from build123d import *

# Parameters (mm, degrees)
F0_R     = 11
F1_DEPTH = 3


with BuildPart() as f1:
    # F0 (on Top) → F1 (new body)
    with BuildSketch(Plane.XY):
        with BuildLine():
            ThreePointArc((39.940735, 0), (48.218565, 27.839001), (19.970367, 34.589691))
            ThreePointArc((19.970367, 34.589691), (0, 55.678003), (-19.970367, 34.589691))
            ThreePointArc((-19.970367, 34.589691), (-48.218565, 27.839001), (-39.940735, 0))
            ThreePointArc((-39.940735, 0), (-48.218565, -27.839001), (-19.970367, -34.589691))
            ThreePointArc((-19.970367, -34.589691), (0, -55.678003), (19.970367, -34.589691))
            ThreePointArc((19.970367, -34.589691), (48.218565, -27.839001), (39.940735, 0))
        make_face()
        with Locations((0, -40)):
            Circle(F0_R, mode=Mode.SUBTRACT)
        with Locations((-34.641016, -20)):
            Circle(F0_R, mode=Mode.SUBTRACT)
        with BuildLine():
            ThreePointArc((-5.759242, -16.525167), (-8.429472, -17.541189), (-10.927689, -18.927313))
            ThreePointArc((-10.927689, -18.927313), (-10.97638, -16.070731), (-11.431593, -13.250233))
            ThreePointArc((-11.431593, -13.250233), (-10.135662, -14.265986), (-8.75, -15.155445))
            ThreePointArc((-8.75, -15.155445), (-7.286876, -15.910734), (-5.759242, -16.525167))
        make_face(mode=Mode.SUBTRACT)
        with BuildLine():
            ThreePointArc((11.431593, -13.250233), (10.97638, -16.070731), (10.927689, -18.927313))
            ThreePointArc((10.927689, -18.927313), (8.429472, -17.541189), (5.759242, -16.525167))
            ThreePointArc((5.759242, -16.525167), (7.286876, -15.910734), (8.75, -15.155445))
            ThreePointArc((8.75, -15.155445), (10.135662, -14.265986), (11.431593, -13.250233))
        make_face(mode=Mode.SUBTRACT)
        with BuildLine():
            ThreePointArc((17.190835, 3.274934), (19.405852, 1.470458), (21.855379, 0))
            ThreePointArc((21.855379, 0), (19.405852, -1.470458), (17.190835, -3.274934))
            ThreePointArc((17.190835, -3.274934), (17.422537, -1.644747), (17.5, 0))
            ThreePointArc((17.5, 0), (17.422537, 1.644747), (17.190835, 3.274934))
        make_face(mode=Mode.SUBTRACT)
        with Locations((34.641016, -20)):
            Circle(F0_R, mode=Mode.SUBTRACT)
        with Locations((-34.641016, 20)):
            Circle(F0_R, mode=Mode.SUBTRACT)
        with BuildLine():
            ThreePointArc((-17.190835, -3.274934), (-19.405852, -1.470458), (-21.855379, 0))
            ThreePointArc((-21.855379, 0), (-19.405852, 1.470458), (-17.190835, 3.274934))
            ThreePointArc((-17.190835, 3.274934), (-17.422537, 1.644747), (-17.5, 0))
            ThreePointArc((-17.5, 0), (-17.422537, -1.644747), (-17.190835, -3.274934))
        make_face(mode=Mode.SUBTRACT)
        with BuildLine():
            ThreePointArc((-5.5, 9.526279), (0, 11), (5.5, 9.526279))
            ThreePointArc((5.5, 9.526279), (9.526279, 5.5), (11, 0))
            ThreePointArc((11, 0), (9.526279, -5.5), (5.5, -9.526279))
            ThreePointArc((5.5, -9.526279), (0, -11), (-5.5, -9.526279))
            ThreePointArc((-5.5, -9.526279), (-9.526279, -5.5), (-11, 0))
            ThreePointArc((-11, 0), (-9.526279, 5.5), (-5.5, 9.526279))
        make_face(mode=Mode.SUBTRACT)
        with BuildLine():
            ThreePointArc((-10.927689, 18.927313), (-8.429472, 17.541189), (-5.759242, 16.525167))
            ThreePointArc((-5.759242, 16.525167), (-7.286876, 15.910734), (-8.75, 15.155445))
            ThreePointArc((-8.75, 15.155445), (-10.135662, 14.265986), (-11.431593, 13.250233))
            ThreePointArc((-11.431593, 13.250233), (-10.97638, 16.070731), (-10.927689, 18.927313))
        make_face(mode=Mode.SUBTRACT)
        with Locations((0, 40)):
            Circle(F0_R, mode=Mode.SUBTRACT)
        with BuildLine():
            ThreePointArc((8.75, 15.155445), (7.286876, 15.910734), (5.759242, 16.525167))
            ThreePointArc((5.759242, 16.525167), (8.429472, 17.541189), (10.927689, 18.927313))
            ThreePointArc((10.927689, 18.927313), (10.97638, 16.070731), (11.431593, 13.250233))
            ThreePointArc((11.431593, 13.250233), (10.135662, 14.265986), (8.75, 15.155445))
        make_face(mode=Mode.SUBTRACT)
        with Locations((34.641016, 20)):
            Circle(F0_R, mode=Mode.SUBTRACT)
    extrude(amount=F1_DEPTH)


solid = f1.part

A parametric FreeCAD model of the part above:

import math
import FreeCAD as App
import Part
import Sketcher
from FreeCAD import Vector

doc = App.newDocument("Part")
body = doc.addObject("PartDesign::Body", "Body")

# Sketch on XY plane
sketch1 = body.newObject("Sketcher::SketchObject", "Sketch")
sketch1.AttachmentSupport = (doc.getObject("XY_Plane"), [""])
sketch1.MapMode = "FlatFace"
sketch1.addGeometry(Part.ArcOfCircle(Part.Circle(Vector(30.898057, 17.839001, 0), Vector(0, 0, 1), 20), math.radians(-63.119323), math.radians(123.119325)), False)
sketch1.addGeometry(Part.ArcOfCircle(Part.Circle(Vector(0, 35.678003, 0), Vector(0, 0, 1), 20), math.radians(-3.119326), math.radians(183.119326)), False)
sketch1.addGeometry(Part.ArcOfCircle(Part.Circle(Vector(-30.898057, 17.839001, 0), Vector(0, 0, 1), 20), math.radians(56.880675), math.radians(243.119323)), False)
sketch1.addGeometry(Part.ArcOfCircle(Part.Circle(Vector(-30.898057, -17.839001, 0), Vector(0, 0, 1), 20), math.radians(116.880677), math.radians(303.119325)), False)
sketch1.addGeometry(Part.ArcOfCircle(Part.Circle(Vector(0, -35.678003, 0), Vector(0, 0, 1), 20), math.radians(176.880674), math.radians(363.119326)), False)
sketch1.addGeometry(Part.ArcOfCircle(Part.Circle(Vector(30.898057, -17.839001, 0), Vector(0, 0, 1), 20), math.radians(-123.119325), math.radians(63.119323)), False)
sketch1.addGeometry(Part.Circle(Vector(-34.641016, -20, 0), Vector(0, 0, 1), 11), False)
sketch1.addGeometry(Part.ArcOfCircle(Part.Circle(Vector(-0.000014, -0.000031, 0), Vector(0, 0, 1), 17.499966), math.radians(-120.00001), math.radians(-109.214119)), False)
sketch1.addGeometry(Part.ArcOfCircle(Part.Circle(Vector(-0.000023, -35.677956, 0), Vector(0, 0, 1), 19.999948), math.radians(106.735966), math.radians(123.119343)), False)
sketch1.addGeometry(Part.ArcOfCircle(Part.Circle(Vector(-30.898114, -17.839007, 0), Vector(0, 0, 1), 20.000057), math.radians(-3.119299), math.radians(13.263989)), False)
sketch1.addGeometry(Part.ArcOfCircle(Part.Circle(Vector(0.000011, 0.000011, 0), Vector(0, 0, 1), 17.500015), math.radians(-130.785875), math.radians(-120.000014)), False)
sketch1.addGeometry(Part.Circle(Vector(0, -40, 0), Vector(0, 0, 1), 11), False)
sketch1.addGeometry(Part.ArcOfCircle(Part.Circle(Vector(-0.000011, 0.000011, 0), Vector(0, 0, 1), 17.500015), math.radians(-59.999986), math.radians(-49.214125)), False)
sketch1.addGeometry(Part.ArcOfCircle(Part.Circle(Vector(30.898114, -17.839007, 0), Vector(0, 0, 1), 20.000057), math.radians(166.736011), math.radians(183.119299)), False)
sketch1.addGeometry(Part.ArcOfCircle(Part.Circle(Vector(0.000023, -35.677956, 0), Vector(0, 0, 1), 19.999948), math.radians(56.880657), math.radians(73.264034)), False)
sketch1.addGeometry(Part.ArcOfCircle(Part.Circle(Vector(0.000014, -0.000031, 0), Vector(0, 0, 1), 17.499966), math.radians(-70.785881), math.radians(-59.99999)), False)
sketch1.addGeometry(Part.Circle(Vector(34.641016, -20, 0), Vector(0, 0, 1), 11), False)
sketch1.addGeometry(Part.Circle(Vector(-34.641016, 20, 0), Vector(0, 0, 1), 11), False)
sketch1.addGeometry(Part.ArcOfCircle(Part.Circle(Vector(0.000078, 0.000007, 0), Vector(0, 0, 1), 17.500078), math.radians(-179.999976), math.radians(-169.214153)), False)
sketch1.addGeometry(Part.ArcOfCircle(Part.Circle(Vector(-30.898066, -17.839014, 0), Vector(0, 0, 1), 20.000016), math.radians(46.735993), math.radians(63.119317)), False)
sketch1.addGeometry(Part.ArcOfCircle(Part.Circle(Vector(-30.898066, 17.839014, 0), Vector(0, 0, 1), 20.000016), math.radians(-63.119317), math.radians(-46.735993)), False)
sketch1.addGeometry(Part.ArcOfCircle(Part.Circle(Vector(0.000078, -0.000007, 0), Vector(0, 0, 1), 17.500078), math.radians(169.214153), math.radians(179.999976)), False)
sketch1.addGeometry(Part.ArcOfCircle(Part.Circle(Vector(-30.898114, 17.839007, 0), Vector(0, 0, 1), 20.000057), math.radians(-13.263989), math.radians(3.119299)), False)
sketch1.addGeometry(Part.ArcOfCircle(Part.Circle(Vector(-0.000023, 35.677956, 0), Vector(0, 0, 1), 19.999948), math.radians(-123.119343), math.radians(-106.735966)), False)
sketch1.addGeometry(Part.ArcOfCircle(Part.Circle(Vector(-0.000014, 0.000031, 0), Vector(0, 0, 1), 17.499966), math.radians(109.214119), math.radians(120.00001)), False)
sketch1.addGeometry(Part.ArcOfCircle(Part.Circle(Vector(0.000011, -0.000011, 0), Vector(0, 0, 1), 17.500015), math.radians(120.000014), math.radians(130.785875)), False)
sketch1.addGeometry(Part.ArcOfCircle(Part.Circle(Vector(0.000001, -0.000001, 0), Vector(0, 0, 1), 11.000001), math.radians(120.000003), math.radians(179.999995)), False)
sketch1.addGeometry(Part.ArcOfCircle(Part.Circle(Vector(0, 0.000003, 0), Vector(0, 0, 1), 10.999997), math.radians(59.999991), math.radians(120.000009)), False)
sketch1.addGeometry(Part.ArcOfCircle(Part.Circle(Vector(-0.000001, -0.000001, 0), Vector(0, 0, 1), 11.000001), math.radians(0.000005), math.radians(59.999997)), False)
sketch1.addGeometry(Part.ArcOfCircle(Part.Circle(Vector(-0.000001, 0.000001, 0), Vector(0, 0, 1), 11.000001), math.radians(-59.999997), math.radians(-0.000005)), False)
sketch1.addGeometry(Part.ArcOfCircle(Part.Circle(Vector(0, -0.000003, 0), Vector(0, 0, 1), 10.999997), math.radians(-120.000009), math.radians(-59.999991)), False)
sketch1.addGeometry(Part.ArcOfCircle(Part.Circle(Vector(0.000001, 0.000001, 0), Vector(0, 0, 1), 11.000001), math.radians(-179.999995), math.radians(-120.000003)), False)
sketch1.addGeometry(Part.ArcOfCircle(Part.Circle(Vector(-0.000078, -0.000007, 0), Vector(0, 0, 1), 17.500078), math.radians(0.000024), math.radians(10.785847)), False)
sketch1.addGeometry(Part.ArcOfCircle(Part.Circle(Vector(30.898066, 17.839014, 0), Vector(0, 0, 1), 20.000016), math.radians(-133.264007), math.radians(-116.880683)), False)
sketch1.addGeometry(Part.ArcOfCircle(Part.Circle(Vector(30.898066, -17.839014, 0), Vector(0, 0, 1), 20.000016), math.radians(116.880683), math.radians(133.264007)), False)
sketch1.addGeometry(Part.ArcOfCircle(Part.Circle(Vector(-0.000078, 0.000007, 0), Vector(0, 0, 1), 17.500078), math.radians(-10.785847), math.radians(-0.000024)), False)
sketch1.addGeometry(Part.ArcOfCircle(Part.Circle(Vector(-0.000011, -0.000011, 0), Vector(0, 0, 1), 17.500015), math.radians(49.214125), math.radians(59.999986)), False)
sketch1.addGeometry(Part.ArcOfCircle(Part.Circle(Vector(0.000014, 0.000031, 0), Vector(0, 0, 1), 17.499966), math.radians(59.99999), math.radians(70.785881)), False)
sketch1.addGeometry(Part.ArcOfCircle(Part.Circle(Vector(0.000023, 35.677956, 0), Vector(0, 0, 1), 19.999948), math.radians(-73.264034), math.radians(-56.880657)), False)
sketch1.addGeometry(Part.ArcOfCircle(Part.Circle(Vector(30.898114, 17.839007, 0), Vector(0, 0, 1), 20.000057), math.radians(176.880701), math.radians(193.263989)), False)
sketch1.addGeometry(Part.Circle(Vector(34.641016, 20, 0), Vector(0, 0, 1), 11), False)
sketch1.addGeometry(Part.Circle(Vector(0, 40, 0), Vector(0, 0, 1), 11), False)
sketch1.addConstraint(Sketcher.Constraint("Coincident", 0, 2, 1, 1))
sketch1.addConstraint(Sketcher.Constraint("Coincident", 1, 2, 2, 1))
sketch1.addConstraint(Sketcher.Constraint("Coincident", 2, 2, 3, 1))
sketch1.addConstraint(Sketcher.Constraint("Coincident", 3, 2, 4, 1))
sketch1.addConstraint(Sketcher.Constraint("Coincident", 4, 2, 5, 1))
sketch1.addConstraint(Sketcher.Constraint("Coincident", 5, 2, 0, 1))
sketch1.addConstraint(Sketcher.Constraint("Coincident", 7, 2, 8, 1))
sketch1.addConstraint(Sketcher.Constraint("Coincident", 8, 2, 9, 1))
sketch1.addConstraint(Sketcher.Constraint("Coincident", 9, 2, 10, 1))
sketch1.addConstraint(Sketcher.Constraint("Tangent", 10, 2, 7, 1))
sketch1.addConstraint(Sketcher.Constraint("Coincident", 12, 2, 13, 1))
sketch1.addConstraint(Sketcher.Constraint("Coincident", 13, 2, 14, 1))
sketch1.addConstraint(Sketcher.Constraint("Coincident", 14, 2, 15, 1))
sketch1.addConstraint(Sketcher.Constraint("Tangent", 15, 2, 12, 1))
sketch1.addConstraint(Sketcher.Constraint("Coincident", 18, 2, 19, 1))
sketch1.addConstraint(Sketcher.Constraint("Coincident", 19, 2, 20, 1))
sketch1.addConstraint(Sketcher.Constraint("Coincident", 20, 2, 21, 1))
sketch1.addConstraint(Sketcher.Constraint("Tangent", 21, 2, 18, 1))
sketch1.addConstraint(Sketcher.Constraint("Coincident", 22, 2, 23, 1))
sketch1.addConstraint(Sketcher.Constraint("Coincident", 23, 2, 24, 1))
sketch1.addConstraint(Sketcher.Constraint("Tangent", 24, 2, 25, 1))
sketch1.addConstraint(Sketcher.Constraint("Coincident", 25, 2, 22, 1))
sketch1.addConstraint(Sketcher.Constraint("Tangent", 26, 1, 27, 2))
sketch1.addConstraint(Sketcher.Constraint("Tangent", 27, 1, 28, 2))
sketch1.addConstraint(Sketcher.Constraint("Tangent", 28, 1, 29, 2))
sketch1.addConstraint(Sketcher.Constraint("Tangent", 29, 1, 30, 2))
sketch1.addConstraint(Sketcher.Constraint("Tangent", 30, 1, 31, 2))
sketch1.addConstraint(Sketcher.Constraint("Tangent", 31, 1, 26, 2))
sketch1.addConstraint(Sketcher.Constraint("Coincident", 32, 2, 33, 1))
sketch1.addConstraint(Sketcher.Constraint("Coincident", 33, 2, 34, 1))
sketch1.addConstraint(Sketcher.Constraint("Coincident", 34, 2, 35, 1))
sketch1.addConstraint(Sketcher.Constraint("Tangent", 35, 2, 32, 1))
sketch1.addConstraint(Sketcher.Constraint("Tangent", 36, 2, 37, 1))
sketch1.addConstraint(Sketcher.Constraint("Coincident", 37, 2, 38, 1))
sketch1.addConstraint(Sketcher.Constraint("Coincident", 38, 2, 39, 1))
sketch1.addConstraint(Sketcher.Constraint("Coincident", 39, 2, 36, 1))
sketch1.addConstraint(Sketcher.Constraint("Coincident", 26, 3, -1, 1))
sketch1.addConstraint(Sketcher.Constraint("Coincident", 28, 3, -1, 1))
sketch1.addConstraint(Sketcher.Constraint("Equal", 0, 1))
sketch1.addConstraint(Sketcher.Constraint("Equal", 1, 2))
sketch1.addConstraint(Sketcher.Constraint("Equal", 2, 3))
sketch1.addConstraint(Sketcher.Constraint("Equal", 3, 4))
sketch1.addConstraint(Sketcher.Constraint("Equal", 4, 5))
sketch1.addConstraint(Sketcher.Constraint("Equal", 6, 11))
sketch1.addConstraint(Sketcher.Constraint("Equal", 10, 12))
sketch1.addConstraint(Sketcher.Constraint("Equal", 9, 13))
sketch1.addConstraint(Sketcher.Constraint("Equal", 8, 14))
sketch1.addConstraint(Sketcher.Constraint("Equal", 7, 15))
sketch1.addConstraint(Sketcher.Constraint("Equal", 11, 16))
sketch1.addConstraint(Sketcher.Constraint("Equal", 16, 17))
sketch1.addConstraint(Sketcher.Constraint("Equal", 19, 20))
sketch1.addConstraint(Sketcher.Constraint("Equal", 18, 21))
sketch1.addConstraint(Sketcher.Constraint("Equal", 13, 22))
sketch1.addConstraint(Sketcher.Constraint("Equal", 14, 23))
sketch1.addConstraint(Sketcher.Constraint("Equal", 15, 24))
sketch1.addConstraint(Sketcher.Constraint("Equal", 12, 25))
sketch1.addConstraint(Sketcher.Constraint("Equal", 17, 26))
sketch1.addConstraint(Sketcher.Constraint("Equal", 28, 29))
sketch1.addConstraint(Sketcher.Constraint("Equal", 21, 32))
sketch1.addConstraint(Sketcher.Constraint("Equal", 20, 33))
sketch1.addConstraint(Sketcher.Constraint("Equal", 33, 34))
sketch1.addConstraint(Sketcher.Constraint("Equal", 32, 35))
sketch1.addConstraint(Sketcher.Constraint("Equal", 25, 36))
sketch1.addConstraint(Sketcher.Constraint("Equal", 24, 37))
sketch1.addConstraint(Sketcher.Constraint("Equal", 23, 38))
sketch1.addConstraint(Sketcher.Constraint("Equal", 22, 39))
sketch1.addConstraint(Sketcher.Constraint("Equal", 31, 40))
sketch1.addConstraint(Sketcher.Constraint("Equal", 40, 41))
sketch1.addConstraint(Sketcher.Constraint("Symmetric", 0, 3, 3, 3, -1, 1))
sketch1.addConstraint(Sketcher.Constraint("Symmetric", 1, 3, 4, 3, -1, 1))
sketch1.addConstraint(Sketcher.Constraint("Symmetric", 2, 3, 5, 3, -1, 1))
sketch1.addConstraint(Sketcher.Constraint("Symmetric", 16, 3, 17, 3, -1, 1))
sketch1.addConstraint(Sketcher.Constraint("Symmetric", 13, 3, 22, 3, -1, 1))
sketch1.addConstraint(Sketcher.Constraint("Symmetric", 14, 3, 23, 3, -1, 1))
sketch1.addConstraint(Sketcher.Constraint("Symmetric", 15, 3, 24, 3, -1, 1))
sketch1.addConstraint(Sketcher.Constraint("Symmetric", 18, 3, 32, 3, -1, 1))
sketch1.addConstraint(Sketcher.Constraint("Symmetric", 19, 3, 33, 3, -1, 1))
sketch1.addConstraint(Sketcher.Constraint("Symmetric", 20, 3, 34, 3, -1, 1))
sketch1.addConstraint(Sketcher.Constraint("Symmetric", 10, 3, 36, 3, -1, 1))
sketch1.addConstraint(Sketcher.Constraint("Symmetric", 8, 3, 38, 3, -1, 1))
sketch1.addConstraint(Sketcher.Constraint("Symmetric", 9, 3, 39, 3, -1, 1))
sketch1.addConstraint(Sketcher.Constraint("Symmetric", 6, 3, 40, 3, -1, 1))
sketch1.addConstraint(Sketcher.Constraint("Symmetric", 11, 3, 41, 3, -1, 1))
sketch1.addConstraint(Sketcher.Constraint("Symmetric", 0, 3, 2, 3, -2))
sketch1.addConstraint(Sketcher.Constraint("Symmetric", 10, 3, 12, 3, -2))
sketch1.addConstraint(Sketcher.Constraint("Symmetric", 9, 3, 13, 3, -2))
sketch1.addConstraint(Sketcher.Constraint("Symmetric", 8, 3, 14, 3, -2))
sketch1.addConstraint(Sketcher.Constraint("Symmetric", 6, 3, 16, 3, -2))
sketch1.addConstraint(Sketcher.Constraint("Symmetric", 20, 3, 33, 3, -2))
sketch1.addConstraint(Sketcher.Constraint("PointOnObject", 1, 3, -2))
sketch1.addConstraint(Sketcher.Constraint("PointOnObject", 11, 3, -2))
sketch1.addConstraint(Sketcher.Constraint("PointOnObject", 21, 2, -1))
sketch1.addConstraint(Sketcher.Constraint("PointOnObject", 28, 1, -1))
sketch1.addConstraint(Sketcher.Constraint("PointOnObject", 31, 1, -1))
sketch1.addConstraint(Sketcher.Constraint("PointOnObject", 35, 2, -1))
sketch1.addConstraint(Sketcher.Constraint("Horizontal", 21, 3, 32, 3))
sketch1.addConstraint(Sketcher.Constraint("Horizontal", 10, 2, 15, 2))
sketch1.addConstraint(Sketcher.Constraint("Horizontal", 26, 1, 27, 1))
sketch1.addConstraint(Sketcher.Constraint("Horizontal", 29, 1, 30, 1))
sketch1.addConstraint(Sketcher.Constraint("Horizontal", 24, 2, 36, 2))
sketch1.addConstraint(Sketcher.Constraint("Vertical", 10, 2, 24, 2))
sketch1.addConstraint(Sketcher.Constraint("Vertical", 27, 1, 29, 1))
sketch1.addConstraint(Sketcher.Constraint("Diameter", 6, 22.0))
sketch1.addConstraint(Sketcher.Constraint("Radius", 0, 20.0))
sketch1.addConstraint(Sketcher.Constraint("DistanceY", 6, 3, -1, 1, 20.0))
sketch1.addConstraint(Sketcher.Constraint("DistanceY", 11, 3, -1, 1, 40.0))
sketch1.addConstraint(Sketcher.Constraint("DistanceX", 21, 2, -1, 1, 17.5))
sketch1.addConstraint(Sketcher.Constraint("DistanceX", 26, 1, -1, 1, 5.5))
sketch1.addConstraint(Sketcher.Constraint("DistanceX", 10, 2, -1, 1, 8.75))
sketch1.addConstraint(Sketcher.Constraint("Radius", 18, 17.500078))
sketch1.addConstraint(Sketcher.Constraint("DistanceY", -1, 1, 0, 3, 17.839001))
sketch1.addConstraint(Sketcher.Constraint("Radius", 7, 17.499966))
sketch1.addConstraint(Sketcher.Constraint("Radius", 8, 19.999948))
sketch1.addConstraint(Sketcher.Constraint("Radius", 9, 20.000057))
sketch1.addConstraint(Sketcher.Constraint("Radius", 10, 17.500015))
sketch1.addConstraint(Sketcher.Constraint("Radius", 19, 20.000016))
sketch1.addConstraint(Sketcher.Constraint("DistanceY", -1, 1, 0, 2, 34.589691))
sketch1.addConstraint(Sketcher.Constraint("DistanceX", 8, 2, -1, 1, 10.927689))
sketch1.addConstraint(Sketcher.Constraint("DistanceX", -1, 1, 14, 2, 5.759242))
sketch1.addConstraint(Sketcher.Constraint("DistanceX", 19, 2, -1, 1, 21.855379))
sketch1.addConstraint(Sketcher.Constraint("DistanceX", -1, 1, 0, 3, 30.898057))
sketch1.addConstraint(Sketcher.Constraint("DistanceX", 6, 3, -1, 1, 34.641016))
sketch1.addConstraint(Sketcher.Constraint("DistanceY", 8, 3, -1, 1, 35.677956))
sketch1.addConstraint(Sketcher.Constraint("DistanceX", 9, 3, -1, 1, 30.898114))
sketch1.addConstraint(Sketcher.Constraint("DistanceY", 9, 3, -1, 1, 17.839007))
sketch1.addConstraint(Sketcher.Constraint("DistanceX", 19, 3, -1, 1, 30.898066))
sketch1.addConstraint(Sketcher.Constraint("DistanceX", 9, 2, -1, 1, 11.431593))
pad1 = body.newObject("PartDesign::Pad", "Pad")
pad1.Profile = sketch1
pad1.Length = 3

doc.recompute()
